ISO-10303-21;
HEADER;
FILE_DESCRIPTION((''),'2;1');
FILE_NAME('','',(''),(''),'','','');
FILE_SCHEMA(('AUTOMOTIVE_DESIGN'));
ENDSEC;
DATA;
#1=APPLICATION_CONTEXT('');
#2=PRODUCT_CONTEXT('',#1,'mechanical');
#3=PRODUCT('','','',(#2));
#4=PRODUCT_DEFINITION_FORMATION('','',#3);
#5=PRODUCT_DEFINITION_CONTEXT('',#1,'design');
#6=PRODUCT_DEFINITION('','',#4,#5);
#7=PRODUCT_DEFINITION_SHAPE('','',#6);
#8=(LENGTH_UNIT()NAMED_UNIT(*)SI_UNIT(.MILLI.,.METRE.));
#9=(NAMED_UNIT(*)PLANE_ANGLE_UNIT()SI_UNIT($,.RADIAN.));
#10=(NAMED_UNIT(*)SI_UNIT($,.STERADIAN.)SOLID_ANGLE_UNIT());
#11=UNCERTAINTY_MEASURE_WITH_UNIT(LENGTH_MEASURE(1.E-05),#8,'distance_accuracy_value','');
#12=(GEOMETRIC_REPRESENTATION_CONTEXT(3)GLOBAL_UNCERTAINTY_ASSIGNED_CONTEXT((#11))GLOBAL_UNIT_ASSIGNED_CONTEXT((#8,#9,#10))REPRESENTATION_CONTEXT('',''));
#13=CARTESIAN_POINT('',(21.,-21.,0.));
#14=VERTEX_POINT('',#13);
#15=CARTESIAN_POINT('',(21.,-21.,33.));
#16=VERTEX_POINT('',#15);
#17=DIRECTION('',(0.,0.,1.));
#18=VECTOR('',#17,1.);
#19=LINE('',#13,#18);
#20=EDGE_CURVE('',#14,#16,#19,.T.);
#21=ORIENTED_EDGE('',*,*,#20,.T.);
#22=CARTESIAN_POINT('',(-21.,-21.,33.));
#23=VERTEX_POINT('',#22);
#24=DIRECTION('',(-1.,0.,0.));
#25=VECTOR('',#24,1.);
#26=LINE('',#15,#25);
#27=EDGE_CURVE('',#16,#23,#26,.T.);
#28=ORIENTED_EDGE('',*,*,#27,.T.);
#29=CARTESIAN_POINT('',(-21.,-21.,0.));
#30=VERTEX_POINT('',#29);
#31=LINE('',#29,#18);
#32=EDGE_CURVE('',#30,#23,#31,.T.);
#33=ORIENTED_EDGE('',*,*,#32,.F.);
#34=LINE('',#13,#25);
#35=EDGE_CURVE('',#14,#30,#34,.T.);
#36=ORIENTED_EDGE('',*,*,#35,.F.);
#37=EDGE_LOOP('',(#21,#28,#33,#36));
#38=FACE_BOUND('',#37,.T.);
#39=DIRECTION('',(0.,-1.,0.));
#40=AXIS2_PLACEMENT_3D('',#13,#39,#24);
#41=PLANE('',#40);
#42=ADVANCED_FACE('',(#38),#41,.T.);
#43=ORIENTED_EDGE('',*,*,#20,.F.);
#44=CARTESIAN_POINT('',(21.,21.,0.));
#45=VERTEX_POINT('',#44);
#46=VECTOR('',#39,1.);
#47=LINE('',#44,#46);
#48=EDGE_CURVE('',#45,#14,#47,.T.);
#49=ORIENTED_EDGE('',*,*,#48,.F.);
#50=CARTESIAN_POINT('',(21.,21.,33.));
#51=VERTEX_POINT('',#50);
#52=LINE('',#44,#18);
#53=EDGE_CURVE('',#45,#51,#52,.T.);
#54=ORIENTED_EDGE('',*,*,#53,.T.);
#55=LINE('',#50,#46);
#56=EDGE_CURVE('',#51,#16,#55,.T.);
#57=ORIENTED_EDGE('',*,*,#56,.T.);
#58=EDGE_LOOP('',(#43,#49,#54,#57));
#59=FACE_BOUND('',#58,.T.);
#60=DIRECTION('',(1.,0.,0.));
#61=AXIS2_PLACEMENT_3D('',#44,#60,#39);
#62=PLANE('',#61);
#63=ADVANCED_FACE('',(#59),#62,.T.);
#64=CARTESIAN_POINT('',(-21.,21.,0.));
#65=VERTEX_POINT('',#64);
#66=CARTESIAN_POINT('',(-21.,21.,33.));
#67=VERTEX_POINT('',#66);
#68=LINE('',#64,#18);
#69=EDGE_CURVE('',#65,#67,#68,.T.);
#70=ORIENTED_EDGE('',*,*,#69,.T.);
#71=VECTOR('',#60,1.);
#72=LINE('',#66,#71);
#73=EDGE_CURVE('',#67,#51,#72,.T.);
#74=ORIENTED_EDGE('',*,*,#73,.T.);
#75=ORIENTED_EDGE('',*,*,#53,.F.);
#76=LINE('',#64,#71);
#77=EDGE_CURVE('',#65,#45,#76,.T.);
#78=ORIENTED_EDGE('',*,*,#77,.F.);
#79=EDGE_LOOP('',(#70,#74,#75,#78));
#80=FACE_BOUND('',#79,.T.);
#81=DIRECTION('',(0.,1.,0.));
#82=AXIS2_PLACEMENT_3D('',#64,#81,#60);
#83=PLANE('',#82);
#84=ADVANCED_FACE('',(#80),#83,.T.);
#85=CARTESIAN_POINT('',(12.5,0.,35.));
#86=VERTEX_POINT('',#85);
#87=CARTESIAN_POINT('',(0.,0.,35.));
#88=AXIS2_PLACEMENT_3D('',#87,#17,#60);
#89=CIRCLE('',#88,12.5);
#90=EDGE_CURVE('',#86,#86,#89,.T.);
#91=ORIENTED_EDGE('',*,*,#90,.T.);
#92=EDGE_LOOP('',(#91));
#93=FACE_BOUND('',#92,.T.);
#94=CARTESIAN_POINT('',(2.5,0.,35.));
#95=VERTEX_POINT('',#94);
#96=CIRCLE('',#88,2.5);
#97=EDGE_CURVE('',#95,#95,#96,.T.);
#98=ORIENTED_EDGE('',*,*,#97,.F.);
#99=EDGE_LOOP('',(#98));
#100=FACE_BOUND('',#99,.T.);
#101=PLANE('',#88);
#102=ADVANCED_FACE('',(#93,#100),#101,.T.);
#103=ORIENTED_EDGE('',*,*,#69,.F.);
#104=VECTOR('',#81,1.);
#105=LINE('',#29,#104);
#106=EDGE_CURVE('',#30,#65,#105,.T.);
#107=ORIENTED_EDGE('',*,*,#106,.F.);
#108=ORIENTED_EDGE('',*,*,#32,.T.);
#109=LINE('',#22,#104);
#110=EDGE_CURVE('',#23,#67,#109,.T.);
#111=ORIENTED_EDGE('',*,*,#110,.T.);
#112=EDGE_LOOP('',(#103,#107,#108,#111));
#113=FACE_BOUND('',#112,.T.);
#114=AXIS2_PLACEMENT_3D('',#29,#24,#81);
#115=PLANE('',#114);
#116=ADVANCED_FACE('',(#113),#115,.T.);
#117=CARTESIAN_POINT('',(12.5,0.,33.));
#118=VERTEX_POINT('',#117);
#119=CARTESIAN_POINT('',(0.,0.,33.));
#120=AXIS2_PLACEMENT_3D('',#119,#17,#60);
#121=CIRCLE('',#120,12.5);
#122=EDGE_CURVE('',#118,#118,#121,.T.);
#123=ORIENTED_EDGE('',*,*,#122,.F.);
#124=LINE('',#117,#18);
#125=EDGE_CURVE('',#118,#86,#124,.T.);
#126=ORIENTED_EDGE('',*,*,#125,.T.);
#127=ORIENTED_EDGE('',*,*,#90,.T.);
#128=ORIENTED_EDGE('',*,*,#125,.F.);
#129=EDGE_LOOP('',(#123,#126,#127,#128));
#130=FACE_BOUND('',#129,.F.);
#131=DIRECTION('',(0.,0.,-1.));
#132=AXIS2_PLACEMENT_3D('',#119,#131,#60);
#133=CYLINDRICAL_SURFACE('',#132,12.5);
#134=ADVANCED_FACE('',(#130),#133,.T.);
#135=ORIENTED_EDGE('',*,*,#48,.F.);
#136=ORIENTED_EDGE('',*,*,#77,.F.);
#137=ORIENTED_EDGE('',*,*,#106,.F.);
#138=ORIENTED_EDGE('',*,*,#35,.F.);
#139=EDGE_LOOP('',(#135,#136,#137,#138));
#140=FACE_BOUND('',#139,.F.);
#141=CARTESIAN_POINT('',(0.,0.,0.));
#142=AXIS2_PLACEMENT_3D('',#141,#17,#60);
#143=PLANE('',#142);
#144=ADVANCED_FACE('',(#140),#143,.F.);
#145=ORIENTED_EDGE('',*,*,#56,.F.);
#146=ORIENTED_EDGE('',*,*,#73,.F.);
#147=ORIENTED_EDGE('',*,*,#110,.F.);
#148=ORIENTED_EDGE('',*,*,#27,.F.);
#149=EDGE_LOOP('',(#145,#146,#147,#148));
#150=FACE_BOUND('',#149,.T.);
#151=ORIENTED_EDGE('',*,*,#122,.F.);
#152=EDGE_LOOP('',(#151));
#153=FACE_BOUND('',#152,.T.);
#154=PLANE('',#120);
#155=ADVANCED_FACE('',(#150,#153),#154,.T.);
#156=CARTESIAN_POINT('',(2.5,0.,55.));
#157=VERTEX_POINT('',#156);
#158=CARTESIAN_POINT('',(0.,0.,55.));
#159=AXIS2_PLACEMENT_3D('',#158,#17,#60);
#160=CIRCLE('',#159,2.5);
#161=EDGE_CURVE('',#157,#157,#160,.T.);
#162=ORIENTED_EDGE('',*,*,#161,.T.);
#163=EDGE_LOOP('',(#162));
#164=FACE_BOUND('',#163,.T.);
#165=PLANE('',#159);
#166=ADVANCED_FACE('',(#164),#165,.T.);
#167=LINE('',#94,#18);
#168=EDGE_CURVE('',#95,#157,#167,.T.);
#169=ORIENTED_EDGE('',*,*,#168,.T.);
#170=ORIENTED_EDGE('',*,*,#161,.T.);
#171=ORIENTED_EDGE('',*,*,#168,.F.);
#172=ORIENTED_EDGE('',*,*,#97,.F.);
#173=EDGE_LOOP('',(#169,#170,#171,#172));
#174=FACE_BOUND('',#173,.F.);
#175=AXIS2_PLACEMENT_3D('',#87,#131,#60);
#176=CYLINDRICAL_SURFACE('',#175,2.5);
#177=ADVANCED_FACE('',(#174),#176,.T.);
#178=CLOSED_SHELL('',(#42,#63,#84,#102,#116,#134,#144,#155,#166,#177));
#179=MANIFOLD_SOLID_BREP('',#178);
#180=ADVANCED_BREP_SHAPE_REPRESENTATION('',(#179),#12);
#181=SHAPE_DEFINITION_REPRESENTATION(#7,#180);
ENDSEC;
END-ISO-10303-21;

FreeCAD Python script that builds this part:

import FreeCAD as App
import Part
import Sketcher
from FreeCAD import Vector
Q = App.Units.Quantity

doc = App.newDocument("Part")
params = doc.addObject("Spreadsheet::Sheet", "Params")
for row, (alias, value) in enumerate([
    ("sketch1_width", "42 mm"),
    ("pad1_length", "33 mm"),
    ("sketch2_diameter", "25 mm"),
    ("pad2_length", "2 mm"),
    ("sketch3_diameter", "5 mm"),
    ("pad3_length", "20 mm"),
], start=1):
    params.set(f"A{row}", alias)
    params.set(f"B{row}", "=" + value)
    params.setAlias(f"B{row}", alias)

body = doc.addObject("PartDesign::Body", "Body")

# Sketch on XY plane
sketch1 = doc.addObject("Sketcher::SketchObject", "Sketch")
body.addObject(sketch1)
sketch1.AttachmentSupport = (doc.XY_Plane, [""])
sketch1.MapMode = "FlatFace"
sketch1.addGeometry([
    Part.LineSegment(Vector(21, 21, 0), Vector(-21, 21, 0)),
    Part.LineSegment(Vector(-21, 21, 0), Vector(-21, -21, 0)),
    Part.LineSegment(Vector(-21, -21, 0), Vector(21, -21, 0)),
    Part.LineSegment(Vector(21, -21, 0), Vector(21, 21, 0)),
], False)
sketch1.addConstraint([
    Sketcher.Constraint("Coincident", 0, 2, 1, 1),
    Sketcher.Constraint("Coincident", 1, 2, 2, 1),
    Sketcher.Constraint("Coincident", 2, 2, 3, 1),
    Sketcher.Constraint("Coincident", 3, 2, 0, 1),
    Sketcher.Constraint("Horizontal", 0),
    Sketcher.Constraint("Vertical", 1),
    Sketcher.Constraint("Horizontal", 2),
    Sketcher.Constraint("Vertical", 3),
    Sketcher.Constraint("Symmetric", 0, 2, 2, 2, -1, 1),
    Sketcher.Constraint("Equal", 2, 1),
    Sketcher.Constraint("DistanceX", 0, 2, 0, 1, Q("42 mm")),
])
sketch1.setExpression("Constraints[10]", "Params.sketch1_width")
pad1 = doc.addObject("PartDesign::Pad", "Pad")
body.addObject(pad1)
pad1.Profile = sketch1
pad1.setExpression("Length", "Params.pad1_length")

# Sketch on XY plane
sketch2 = doc.addObject("Sketcher::SketchObject", "Sketch001")
body.addObject(sketch2)
sketch2.AttachmentSupport = (doc.XY_Plane, [""])
sketch2.MapMode = "FlatFace"
sketch2.AttachmentOffset = App.Placement(Vector(0, 0, 33), App.Rotation())
sketch2.addGeometry(Part.Circle(Vector(0, 0, 0), Vector(0, 0, 1), 12.5), False)
sketch2.addConstraint([
    Sketcher.Constraint("Coincident", 0, 3, -1, 1),
    Sketcher.Constraint("Diameter", 0, Q("25 mm")),
])
sketch2.setExpression("Constraints[1]", "Params.sketch2_diameter")
pad2 = doc.addObject("PartDesign::Pad", "Pad001")
body.addObject(pad2)
pad2.Profile = sketch2
pad2.setExpression("Length", "Params.pad2_length")

# Sketch on XY plane
sketch3 = doc.addObject("Sketcher::SketchObject", "Sketch002")
body.addObject(sketch3)
sketch3.AttachmentSupport = (doc.XY_Plane, [""])
sketch3.MapMode = "FlatFace"
sketch3.AttachmentOffset = App.Placement(Vector(0, 0, 35), App.Rotation())
sketch3.addGeometry(Part.Circle(Vector(0, 0, 0), Vector(0, 0, 1), 2.5), False)
sketch3.addConstraint([
    Sketcher.Constraint("Coincident", 0, 3, -1, 1),
    Sketcher.Constraint("Diameter", 0, Q("5 mm")),
])
sketch3.setExpression("Constraints[1]", "Params.sketch3_diameter")
pad3 = doc.addObject("PartDesign::Pad", "Pad002")
body.addObject(pad3)
pad3.Profile = sketch3
pad3.setExpression("Length", "Params.pad3_length")

doc.recompute()
